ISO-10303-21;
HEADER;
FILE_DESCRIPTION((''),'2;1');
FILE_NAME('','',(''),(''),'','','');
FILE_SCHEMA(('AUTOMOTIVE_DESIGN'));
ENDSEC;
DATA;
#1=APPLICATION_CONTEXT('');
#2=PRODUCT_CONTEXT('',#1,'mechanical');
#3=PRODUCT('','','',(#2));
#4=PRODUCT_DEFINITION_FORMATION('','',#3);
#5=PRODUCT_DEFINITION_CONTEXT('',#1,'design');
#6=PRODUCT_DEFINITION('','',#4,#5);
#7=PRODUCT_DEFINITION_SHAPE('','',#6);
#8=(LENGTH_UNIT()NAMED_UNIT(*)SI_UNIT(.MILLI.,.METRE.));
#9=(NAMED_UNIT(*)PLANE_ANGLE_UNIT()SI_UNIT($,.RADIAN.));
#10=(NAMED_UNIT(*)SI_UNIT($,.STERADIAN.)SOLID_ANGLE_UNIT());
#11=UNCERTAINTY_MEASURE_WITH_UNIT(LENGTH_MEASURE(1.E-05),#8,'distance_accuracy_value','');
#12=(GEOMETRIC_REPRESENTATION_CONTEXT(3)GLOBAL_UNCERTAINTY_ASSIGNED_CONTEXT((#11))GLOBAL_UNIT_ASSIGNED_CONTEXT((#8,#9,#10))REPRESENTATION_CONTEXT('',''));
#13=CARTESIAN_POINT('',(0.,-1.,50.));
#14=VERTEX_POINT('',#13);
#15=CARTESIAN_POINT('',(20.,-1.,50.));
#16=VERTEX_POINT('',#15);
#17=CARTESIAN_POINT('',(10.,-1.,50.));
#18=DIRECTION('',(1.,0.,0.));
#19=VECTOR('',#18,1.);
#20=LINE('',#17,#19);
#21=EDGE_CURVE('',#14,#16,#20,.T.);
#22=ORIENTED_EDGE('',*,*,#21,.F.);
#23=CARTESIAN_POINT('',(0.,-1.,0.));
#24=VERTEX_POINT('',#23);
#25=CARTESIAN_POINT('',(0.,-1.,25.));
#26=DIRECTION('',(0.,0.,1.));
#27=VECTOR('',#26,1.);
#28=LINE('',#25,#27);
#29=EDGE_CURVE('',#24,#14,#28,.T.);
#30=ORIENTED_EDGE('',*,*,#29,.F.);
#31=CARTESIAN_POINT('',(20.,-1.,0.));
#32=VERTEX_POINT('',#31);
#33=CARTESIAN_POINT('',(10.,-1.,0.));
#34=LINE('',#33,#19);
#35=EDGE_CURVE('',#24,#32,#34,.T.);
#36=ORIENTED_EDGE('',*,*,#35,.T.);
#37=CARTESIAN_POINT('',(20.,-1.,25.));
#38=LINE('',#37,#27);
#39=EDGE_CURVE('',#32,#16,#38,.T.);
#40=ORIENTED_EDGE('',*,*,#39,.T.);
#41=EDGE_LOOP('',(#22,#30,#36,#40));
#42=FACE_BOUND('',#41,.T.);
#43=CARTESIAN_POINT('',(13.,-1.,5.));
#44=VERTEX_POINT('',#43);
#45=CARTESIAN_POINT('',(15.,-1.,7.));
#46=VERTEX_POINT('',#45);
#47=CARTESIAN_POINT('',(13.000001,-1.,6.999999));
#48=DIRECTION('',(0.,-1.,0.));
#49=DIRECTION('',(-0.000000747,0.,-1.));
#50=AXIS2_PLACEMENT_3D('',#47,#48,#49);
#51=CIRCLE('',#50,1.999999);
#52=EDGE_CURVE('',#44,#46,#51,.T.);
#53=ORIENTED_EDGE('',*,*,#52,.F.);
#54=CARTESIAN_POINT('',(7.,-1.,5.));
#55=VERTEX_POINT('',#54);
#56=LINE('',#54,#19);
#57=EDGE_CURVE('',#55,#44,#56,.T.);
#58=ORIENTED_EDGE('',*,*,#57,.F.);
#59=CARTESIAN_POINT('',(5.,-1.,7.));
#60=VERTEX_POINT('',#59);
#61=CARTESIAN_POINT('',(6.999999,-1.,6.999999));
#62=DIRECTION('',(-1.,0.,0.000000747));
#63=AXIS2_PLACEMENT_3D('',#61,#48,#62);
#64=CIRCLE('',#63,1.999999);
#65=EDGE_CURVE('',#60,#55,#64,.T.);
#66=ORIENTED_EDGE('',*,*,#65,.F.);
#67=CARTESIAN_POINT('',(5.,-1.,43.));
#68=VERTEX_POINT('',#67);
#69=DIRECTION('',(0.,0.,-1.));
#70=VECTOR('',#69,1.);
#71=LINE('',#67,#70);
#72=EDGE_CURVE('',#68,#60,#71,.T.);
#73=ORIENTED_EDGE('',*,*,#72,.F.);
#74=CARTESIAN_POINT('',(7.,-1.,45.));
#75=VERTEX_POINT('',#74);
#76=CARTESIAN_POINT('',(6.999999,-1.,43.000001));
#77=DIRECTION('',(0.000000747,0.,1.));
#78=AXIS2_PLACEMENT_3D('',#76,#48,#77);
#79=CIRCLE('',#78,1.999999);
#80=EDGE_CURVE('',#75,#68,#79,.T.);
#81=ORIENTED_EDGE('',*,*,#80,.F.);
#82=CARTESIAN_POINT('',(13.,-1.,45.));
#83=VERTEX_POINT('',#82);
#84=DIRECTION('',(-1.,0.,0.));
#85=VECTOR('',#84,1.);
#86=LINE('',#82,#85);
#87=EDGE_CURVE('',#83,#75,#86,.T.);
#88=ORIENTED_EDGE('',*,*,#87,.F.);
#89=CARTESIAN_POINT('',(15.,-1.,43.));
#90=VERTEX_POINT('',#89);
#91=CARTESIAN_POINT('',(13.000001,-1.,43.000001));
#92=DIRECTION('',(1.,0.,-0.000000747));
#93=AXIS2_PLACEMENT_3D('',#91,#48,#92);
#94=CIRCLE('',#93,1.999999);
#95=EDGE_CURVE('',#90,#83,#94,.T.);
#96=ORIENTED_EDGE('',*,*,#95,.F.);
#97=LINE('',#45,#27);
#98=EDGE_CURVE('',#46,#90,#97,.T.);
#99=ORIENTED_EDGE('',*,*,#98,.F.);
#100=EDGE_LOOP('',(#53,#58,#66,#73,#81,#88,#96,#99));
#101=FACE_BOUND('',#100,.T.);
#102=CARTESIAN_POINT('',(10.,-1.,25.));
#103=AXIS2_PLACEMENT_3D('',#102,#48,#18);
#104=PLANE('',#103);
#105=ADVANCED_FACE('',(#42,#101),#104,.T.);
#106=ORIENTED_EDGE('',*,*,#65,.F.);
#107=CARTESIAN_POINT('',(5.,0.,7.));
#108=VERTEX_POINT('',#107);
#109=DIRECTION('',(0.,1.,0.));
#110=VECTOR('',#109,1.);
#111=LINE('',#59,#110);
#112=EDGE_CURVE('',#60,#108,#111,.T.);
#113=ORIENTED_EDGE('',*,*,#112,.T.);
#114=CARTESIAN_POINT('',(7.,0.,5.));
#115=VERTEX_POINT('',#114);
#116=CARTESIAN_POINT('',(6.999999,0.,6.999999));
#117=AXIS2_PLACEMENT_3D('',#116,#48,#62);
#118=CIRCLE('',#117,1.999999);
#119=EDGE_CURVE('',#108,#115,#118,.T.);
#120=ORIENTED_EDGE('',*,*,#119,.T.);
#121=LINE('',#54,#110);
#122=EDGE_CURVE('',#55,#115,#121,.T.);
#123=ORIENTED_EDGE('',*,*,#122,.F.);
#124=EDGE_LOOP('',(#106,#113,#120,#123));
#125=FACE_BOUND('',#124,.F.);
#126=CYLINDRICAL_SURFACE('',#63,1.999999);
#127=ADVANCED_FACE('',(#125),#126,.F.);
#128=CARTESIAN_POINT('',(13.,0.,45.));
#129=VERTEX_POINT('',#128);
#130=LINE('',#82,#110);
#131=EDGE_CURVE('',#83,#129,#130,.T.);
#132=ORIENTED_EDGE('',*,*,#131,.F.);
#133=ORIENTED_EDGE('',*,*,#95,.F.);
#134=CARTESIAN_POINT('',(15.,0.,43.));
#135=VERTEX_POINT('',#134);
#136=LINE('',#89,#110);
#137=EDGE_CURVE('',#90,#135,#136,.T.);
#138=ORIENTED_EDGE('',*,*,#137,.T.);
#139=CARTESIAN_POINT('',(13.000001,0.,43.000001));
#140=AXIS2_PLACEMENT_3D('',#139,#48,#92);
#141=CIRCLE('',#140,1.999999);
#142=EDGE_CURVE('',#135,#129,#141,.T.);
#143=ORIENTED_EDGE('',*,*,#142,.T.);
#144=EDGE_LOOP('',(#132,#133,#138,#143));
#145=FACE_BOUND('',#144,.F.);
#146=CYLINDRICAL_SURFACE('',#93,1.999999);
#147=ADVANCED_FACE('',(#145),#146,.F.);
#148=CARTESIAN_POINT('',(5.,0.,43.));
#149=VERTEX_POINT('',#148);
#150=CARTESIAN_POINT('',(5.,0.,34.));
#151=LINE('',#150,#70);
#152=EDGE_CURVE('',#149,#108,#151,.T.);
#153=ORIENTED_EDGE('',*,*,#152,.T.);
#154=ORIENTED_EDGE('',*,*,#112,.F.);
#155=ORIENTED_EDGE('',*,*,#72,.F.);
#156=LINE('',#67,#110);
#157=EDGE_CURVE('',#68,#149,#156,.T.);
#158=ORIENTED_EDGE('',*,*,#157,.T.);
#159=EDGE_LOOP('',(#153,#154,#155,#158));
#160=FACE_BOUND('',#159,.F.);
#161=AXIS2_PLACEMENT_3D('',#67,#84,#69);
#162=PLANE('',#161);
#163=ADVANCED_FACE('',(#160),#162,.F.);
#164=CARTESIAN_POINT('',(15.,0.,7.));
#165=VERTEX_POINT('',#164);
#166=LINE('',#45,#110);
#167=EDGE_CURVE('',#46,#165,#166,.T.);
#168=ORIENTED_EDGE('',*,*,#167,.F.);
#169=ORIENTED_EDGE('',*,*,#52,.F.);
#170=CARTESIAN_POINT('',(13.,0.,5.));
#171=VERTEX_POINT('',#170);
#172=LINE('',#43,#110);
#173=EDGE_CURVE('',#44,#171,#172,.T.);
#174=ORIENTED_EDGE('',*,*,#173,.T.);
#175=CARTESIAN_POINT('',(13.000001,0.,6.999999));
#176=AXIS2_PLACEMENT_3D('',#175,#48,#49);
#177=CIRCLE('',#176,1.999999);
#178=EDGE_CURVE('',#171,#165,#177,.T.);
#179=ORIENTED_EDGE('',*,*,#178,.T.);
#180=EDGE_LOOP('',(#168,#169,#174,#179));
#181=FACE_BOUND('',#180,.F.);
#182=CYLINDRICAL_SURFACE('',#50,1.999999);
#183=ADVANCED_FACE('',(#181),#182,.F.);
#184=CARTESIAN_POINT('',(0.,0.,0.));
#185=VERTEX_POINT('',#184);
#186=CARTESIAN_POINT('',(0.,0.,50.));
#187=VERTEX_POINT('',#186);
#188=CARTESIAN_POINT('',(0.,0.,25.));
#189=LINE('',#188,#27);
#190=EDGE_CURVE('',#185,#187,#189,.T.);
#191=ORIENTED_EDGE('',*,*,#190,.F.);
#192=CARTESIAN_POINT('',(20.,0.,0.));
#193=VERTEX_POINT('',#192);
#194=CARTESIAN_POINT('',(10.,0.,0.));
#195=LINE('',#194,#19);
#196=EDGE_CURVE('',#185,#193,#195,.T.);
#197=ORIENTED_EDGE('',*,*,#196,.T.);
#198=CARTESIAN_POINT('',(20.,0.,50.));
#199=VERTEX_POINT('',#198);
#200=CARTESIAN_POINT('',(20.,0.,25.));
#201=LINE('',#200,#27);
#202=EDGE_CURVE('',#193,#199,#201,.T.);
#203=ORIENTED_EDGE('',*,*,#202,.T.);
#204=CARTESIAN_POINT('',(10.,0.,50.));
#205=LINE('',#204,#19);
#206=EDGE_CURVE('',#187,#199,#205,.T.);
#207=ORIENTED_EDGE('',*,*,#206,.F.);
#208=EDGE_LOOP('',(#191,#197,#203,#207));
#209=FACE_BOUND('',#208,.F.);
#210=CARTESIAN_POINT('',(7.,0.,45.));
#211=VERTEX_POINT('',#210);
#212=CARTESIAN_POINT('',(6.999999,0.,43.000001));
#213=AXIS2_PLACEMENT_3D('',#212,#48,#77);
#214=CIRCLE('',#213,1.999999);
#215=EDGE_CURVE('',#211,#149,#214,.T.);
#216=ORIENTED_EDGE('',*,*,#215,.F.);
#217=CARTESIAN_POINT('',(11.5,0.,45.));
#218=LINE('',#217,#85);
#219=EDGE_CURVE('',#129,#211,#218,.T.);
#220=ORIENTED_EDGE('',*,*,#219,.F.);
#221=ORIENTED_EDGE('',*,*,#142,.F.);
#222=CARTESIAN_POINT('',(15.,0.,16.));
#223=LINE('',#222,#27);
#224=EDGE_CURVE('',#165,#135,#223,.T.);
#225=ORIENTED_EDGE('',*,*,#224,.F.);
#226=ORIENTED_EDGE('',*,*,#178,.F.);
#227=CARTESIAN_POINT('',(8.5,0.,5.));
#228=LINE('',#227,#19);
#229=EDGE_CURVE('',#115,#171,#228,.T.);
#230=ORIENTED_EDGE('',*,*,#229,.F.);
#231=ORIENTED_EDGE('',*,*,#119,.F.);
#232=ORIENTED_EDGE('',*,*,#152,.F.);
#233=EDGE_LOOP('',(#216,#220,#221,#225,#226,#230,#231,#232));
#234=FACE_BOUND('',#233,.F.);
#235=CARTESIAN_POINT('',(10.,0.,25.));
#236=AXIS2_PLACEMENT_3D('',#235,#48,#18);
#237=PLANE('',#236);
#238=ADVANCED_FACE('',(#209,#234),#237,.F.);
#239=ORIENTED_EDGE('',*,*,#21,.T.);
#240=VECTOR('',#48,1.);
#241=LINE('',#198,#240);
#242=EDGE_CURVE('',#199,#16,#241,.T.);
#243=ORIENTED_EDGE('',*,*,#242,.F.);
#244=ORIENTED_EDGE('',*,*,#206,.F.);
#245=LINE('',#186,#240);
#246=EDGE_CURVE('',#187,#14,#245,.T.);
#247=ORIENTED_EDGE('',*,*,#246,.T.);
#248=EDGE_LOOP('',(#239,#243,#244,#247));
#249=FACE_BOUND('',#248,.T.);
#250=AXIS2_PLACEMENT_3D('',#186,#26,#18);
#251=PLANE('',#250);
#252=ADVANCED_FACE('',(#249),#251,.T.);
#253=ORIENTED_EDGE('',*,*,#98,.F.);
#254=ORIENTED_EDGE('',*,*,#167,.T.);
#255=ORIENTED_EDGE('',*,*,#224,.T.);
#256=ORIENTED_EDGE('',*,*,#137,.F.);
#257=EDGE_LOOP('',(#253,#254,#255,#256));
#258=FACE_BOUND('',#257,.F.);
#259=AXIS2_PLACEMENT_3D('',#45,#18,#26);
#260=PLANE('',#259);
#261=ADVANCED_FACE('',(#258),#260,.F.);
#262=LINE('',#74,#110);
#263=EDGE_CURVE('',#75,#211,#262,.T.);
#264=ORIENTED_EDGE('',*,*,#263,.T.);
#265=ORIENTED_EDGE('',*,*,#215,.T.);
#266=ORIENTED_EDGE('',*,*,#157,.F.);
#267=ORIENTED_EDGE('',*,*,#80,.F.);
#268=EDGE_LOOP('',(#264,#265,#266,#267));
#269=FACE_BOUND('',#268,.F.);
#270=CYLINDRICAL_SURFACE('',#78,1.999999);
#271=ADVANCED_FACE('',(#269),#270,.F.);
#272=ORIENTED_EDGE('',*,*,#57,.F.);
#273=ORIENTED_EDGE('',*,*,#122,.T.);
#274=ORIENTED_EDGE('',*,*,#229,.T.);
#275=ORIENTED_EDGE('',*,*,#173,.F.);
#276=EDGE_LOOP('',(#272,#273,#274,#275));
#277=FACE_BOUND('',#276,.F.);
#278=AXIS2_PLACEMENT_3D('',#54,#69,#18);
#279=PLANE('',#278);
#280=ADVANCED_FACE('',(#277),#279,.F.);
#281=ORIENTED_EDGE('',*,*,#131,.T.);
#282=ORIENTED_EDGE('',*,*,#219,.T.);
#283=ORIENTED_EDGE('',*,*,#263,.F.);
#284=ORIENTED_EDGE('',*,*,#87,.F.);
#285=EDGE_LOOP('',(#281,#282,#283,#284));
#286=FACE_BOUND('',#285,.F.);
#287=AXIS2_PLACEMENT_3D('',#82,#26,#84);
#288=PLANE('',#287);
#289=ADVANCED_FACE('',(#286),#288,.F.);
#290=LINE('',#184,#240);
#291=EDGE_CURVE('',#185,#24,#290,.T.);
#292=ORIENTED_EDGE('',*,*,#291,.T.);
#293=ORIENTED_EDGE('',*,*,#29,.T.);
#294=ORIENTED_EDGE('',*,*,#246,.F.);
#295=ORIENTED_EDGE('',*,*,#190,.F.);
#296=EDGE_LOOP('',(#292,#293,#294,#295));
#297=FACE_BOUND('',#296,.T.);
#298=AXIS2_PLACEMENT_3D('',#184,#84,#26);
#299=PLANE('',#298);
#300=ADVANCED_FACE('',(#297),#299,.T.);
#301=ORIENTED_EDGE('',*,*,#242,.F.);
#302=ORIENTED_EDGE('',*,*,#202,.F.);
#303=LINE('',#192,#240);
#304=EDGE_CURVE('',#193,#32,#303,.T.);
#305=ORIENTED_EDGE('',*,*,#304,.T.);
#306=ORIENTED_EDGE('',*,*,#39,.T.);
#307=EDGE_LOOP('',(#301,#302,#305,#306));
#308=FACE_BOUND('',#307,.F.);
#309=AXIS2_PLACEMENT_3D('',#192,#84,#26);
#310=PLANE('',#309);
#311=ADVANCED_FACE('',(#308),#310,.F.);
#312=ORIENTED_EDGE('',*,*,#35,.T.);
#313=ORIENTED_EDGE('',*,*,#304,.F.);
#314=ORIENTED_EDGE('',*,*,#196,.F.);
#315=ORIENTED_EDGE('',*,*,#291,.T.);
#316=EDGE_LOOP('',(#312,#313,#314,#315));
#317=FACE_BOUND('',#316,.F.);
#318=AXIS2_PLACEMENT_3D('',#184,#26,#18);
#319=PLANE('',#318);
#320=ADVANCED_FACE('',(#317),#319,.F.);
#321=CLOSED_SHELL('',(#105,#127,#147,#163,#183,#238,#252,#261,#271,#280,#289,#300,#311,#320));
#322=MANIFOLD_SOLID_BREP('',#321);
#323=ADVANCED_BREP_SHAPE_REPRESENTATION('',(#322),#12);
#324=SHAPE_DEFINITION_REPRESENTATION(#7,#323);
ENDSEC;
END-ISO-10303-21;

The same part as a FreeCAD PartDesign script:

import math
import FreeCAD as App
import Part
import Sketcher


def add_polygon(sketch, points):
    """Adds a closed chain of lines whose ends are joined by coincident constraints."""
    first, n = sketch.GeometryCount, len(points)
    for a, b in zip(points, points[1:] + points[:1]):
        sketch.addGeometry(Part.LineSegment(App.Vector(*a, 0), App.Vector(*b, 0)), False)
    for i in range(n):
        sketch.addConstraint(Sketcher.Constraint("Coincident", first + i, 2, first + (i + 1) % n, 1))

doc = App.newDocument("Part")
params = doc.addObject("Spreadsheet::Sheet", "Params")
for row, (alias, value) in enumerate([
    ("sketch1_width", "20 mm"),
    ("sketch1_height", "50 mm"),
    ("pad1_length", "1 mm"),
    ("sketch2_radius", "1.999999 mm"),
    ("sketch2_width", "6 mm"),
    ("sketch2_height", "36 mm"),
], start=1):
    params.set(f"A{row}", alias)
    params.set(f"B{row}", "=" + value)
    params.setAlias(f"B{row}", alias)

body = doc.addObject("PartDesign::Body", "Body")

# Sketch on XZ plane
sketch1 = doc.addObject("Sketcher::SketchObject", "Sketch")
body.addObject(sketch1)
sketch1.AttachmentSupport = (doc.XZ_Plane, [""])
sketch1.MapMode = "FlatFace"
add_polygon(sketch1, [(0, 50), (0, 0), (20, 0), (20, 50)])  # lines 0-3
sketch1.addConstraint(Sketcher.Constraint("Vertical", 0))
sketch1.addConstraint(Sketcher.Constraint("Horizontal", 1))
sketch1.addConstraint(Sketcher.Constraint("Vertical", 2))
sketch1.addConstraint(Sketcher.Constraint("Horizontal", 3))
sketch1.addConstraint(Sketcher.Constraint("Coincident", 0, 2, -1, 1))
sketch1.addConstraint(Sketcher.Constraint("DistanceX", 1, 1, 1, 2, 20.0))
sketch1.addConstraint(Sketcher.Constraint("DistanceY", 0, 2, 0, 1, 50.0))
sketch1.setExpression("Constraints[9]", "Params.sketch1_width")
sketch1.setExpression("Constraints[10]", "Params.sketch1_height")
pad1 = doc.addObject("PartDesign::Pad", "Pad")
body.addObject(pad1)
pad1.Profile = sketch1
pad1.setExpression("Length", "Params.pad1_length")

# Sketch on XZ plane
sketch2 = doc.addObject("Sketcher::SketchObject", "Sketch001")
body.addObject(sketch2)
sketch2.AttachmentSupport = (doc.XZ_Plane, [""])
sketch2.MapMode = "FlatFace"
sketch2.AttachmentOffset = App.Placement(App.Vector(0, 0, 1), App.Rotation())
sketch2.addGeometry(Part.ArcOfCircle(Part.Circle(App.Vector(6.999999, 6.999999, 0), App.Vector(0, 0, 1), 1.999999), math.radians(179.999957), math.radians(270.000043)), False)
sketch2.addGeometry(Part.LineSegment(App.Vector(7, 5, 0), App.Vector(13, 5, 0)), False)
sketch2.addGeometry(Part.ArcOfCircle(Part.Circle(App.Vector(13.000001, 6.999999, 0), App.Vector(0, 0, 1), 1.999999), math.radians(-90.000043), math.radians(0.000043)), False)
sketch2.addGeometry(Part.LineSegment(App.Vector(15, 7, 0), App.Vector(15, 43, 0)), False)
sketch2.addGeometry(Part.ArcOfCircle(Part.Circle(App.Vector(13.000001, 43.000001, 0), App.Vector(0, 0, 1), 1.999999), math.radians(-0.000043), math.radians(90.000043)), False)
sketch2.addGeometry(Part.LineSegment(App.Vector(13, 45, 0), App.Vector(7, 45, 0)), False)
sketch2.addGeometry(Part.ArcOfCircle(Part.Circle(App.Vector(6.999999, 43.000001, 0), App.Vector(0, 0, 1), 1.999999), math.radians(89.999957), math.radians(180.000043)), False)
sketch2.addGeometry(Part.LineSegment(App.Vector(5, 43, 0), App.Vector(5, 7, 0)), False)
sketch2.addConstraint(Sketcher.Constraint("Tangent", 0, 2, 1, 1))
sketch2.addConstraint(Sketcher.Constraint("Tangent", 1, 2, 2, 1))
sketch2.addConstraint(Sketcher.Constraint("Tangent", 2, 2, 3, 1))
sketch2.addConstraint(Sketcher.Constraint("Tangent", 3, 2, 4, 1))
sketch2.addConstraint(Sketcher.Constraint("Tangent", 4, 2, 5, 1))
sketch2.addConstraint(Sketcher.Constraint("Tangent", 5, 2, 6, 1))
sketch2.addConstraint(Sketcher.Constraint("Tangent", 6, 2, 7, 1))
sketch2.addConstraint(Sketcher.Constraint("Tangent", 7, 2, 0, 1))
sketch2.addConstraint(Sketcher.Constraint("Horizontal", 1))
sketch2.addConstraint(Sketcher.Constraint("Vertical", 3))
sketch2.addConstraint(Sketcher.Constraint("Horizontal", 5))
sketch2.addConstraint(Sketcher.Constraint("Vertical", 7))
sketch2.addConstraint(Sketcher.Constraint("Equal", 0, 2))
sketch2.addConstraint(Sketcher.Constraint("Equal", 2, 4))
sketch2.addConstraint(Sketcher.Constraint("Equal", 4, 6))
sketch2.addConstraint(Sketcher.Constraint("Radius", 0, 1.999999))
sketch2.addConstraint(Sketcher.Constraint("DistanceX", 1, 1, 1, 2, 6.0))
sketch2.addConstraint(Sketcher.Constraint("DistanceY", 3, 1, 3, 2, 36.0))
sketch2.addConstraint(Sketcher.Constraint("DistanceX", -1, 1, 0, 3, 6.999999))
sketch2.addConstraint(Sketcher.Constraint("DistanceY", -1, 1, 0, 3, 6.999999))
sketch2.setExpression("Constraints[15]", "Params.sketch2_radius")
sketch2.setExpression("Constraints[16]", "Params.sketch2_width")
sketch2.setExpression("Constraints[17]", "Params.sketch2_height")
pocket1 = doc.addObject("PartDesign::Pocket", "Pocket")
body.addObject(pocket1)
pocket1.Profile = sketch2
pocket1.Type = "ThroughAll"

doc.recompute()
